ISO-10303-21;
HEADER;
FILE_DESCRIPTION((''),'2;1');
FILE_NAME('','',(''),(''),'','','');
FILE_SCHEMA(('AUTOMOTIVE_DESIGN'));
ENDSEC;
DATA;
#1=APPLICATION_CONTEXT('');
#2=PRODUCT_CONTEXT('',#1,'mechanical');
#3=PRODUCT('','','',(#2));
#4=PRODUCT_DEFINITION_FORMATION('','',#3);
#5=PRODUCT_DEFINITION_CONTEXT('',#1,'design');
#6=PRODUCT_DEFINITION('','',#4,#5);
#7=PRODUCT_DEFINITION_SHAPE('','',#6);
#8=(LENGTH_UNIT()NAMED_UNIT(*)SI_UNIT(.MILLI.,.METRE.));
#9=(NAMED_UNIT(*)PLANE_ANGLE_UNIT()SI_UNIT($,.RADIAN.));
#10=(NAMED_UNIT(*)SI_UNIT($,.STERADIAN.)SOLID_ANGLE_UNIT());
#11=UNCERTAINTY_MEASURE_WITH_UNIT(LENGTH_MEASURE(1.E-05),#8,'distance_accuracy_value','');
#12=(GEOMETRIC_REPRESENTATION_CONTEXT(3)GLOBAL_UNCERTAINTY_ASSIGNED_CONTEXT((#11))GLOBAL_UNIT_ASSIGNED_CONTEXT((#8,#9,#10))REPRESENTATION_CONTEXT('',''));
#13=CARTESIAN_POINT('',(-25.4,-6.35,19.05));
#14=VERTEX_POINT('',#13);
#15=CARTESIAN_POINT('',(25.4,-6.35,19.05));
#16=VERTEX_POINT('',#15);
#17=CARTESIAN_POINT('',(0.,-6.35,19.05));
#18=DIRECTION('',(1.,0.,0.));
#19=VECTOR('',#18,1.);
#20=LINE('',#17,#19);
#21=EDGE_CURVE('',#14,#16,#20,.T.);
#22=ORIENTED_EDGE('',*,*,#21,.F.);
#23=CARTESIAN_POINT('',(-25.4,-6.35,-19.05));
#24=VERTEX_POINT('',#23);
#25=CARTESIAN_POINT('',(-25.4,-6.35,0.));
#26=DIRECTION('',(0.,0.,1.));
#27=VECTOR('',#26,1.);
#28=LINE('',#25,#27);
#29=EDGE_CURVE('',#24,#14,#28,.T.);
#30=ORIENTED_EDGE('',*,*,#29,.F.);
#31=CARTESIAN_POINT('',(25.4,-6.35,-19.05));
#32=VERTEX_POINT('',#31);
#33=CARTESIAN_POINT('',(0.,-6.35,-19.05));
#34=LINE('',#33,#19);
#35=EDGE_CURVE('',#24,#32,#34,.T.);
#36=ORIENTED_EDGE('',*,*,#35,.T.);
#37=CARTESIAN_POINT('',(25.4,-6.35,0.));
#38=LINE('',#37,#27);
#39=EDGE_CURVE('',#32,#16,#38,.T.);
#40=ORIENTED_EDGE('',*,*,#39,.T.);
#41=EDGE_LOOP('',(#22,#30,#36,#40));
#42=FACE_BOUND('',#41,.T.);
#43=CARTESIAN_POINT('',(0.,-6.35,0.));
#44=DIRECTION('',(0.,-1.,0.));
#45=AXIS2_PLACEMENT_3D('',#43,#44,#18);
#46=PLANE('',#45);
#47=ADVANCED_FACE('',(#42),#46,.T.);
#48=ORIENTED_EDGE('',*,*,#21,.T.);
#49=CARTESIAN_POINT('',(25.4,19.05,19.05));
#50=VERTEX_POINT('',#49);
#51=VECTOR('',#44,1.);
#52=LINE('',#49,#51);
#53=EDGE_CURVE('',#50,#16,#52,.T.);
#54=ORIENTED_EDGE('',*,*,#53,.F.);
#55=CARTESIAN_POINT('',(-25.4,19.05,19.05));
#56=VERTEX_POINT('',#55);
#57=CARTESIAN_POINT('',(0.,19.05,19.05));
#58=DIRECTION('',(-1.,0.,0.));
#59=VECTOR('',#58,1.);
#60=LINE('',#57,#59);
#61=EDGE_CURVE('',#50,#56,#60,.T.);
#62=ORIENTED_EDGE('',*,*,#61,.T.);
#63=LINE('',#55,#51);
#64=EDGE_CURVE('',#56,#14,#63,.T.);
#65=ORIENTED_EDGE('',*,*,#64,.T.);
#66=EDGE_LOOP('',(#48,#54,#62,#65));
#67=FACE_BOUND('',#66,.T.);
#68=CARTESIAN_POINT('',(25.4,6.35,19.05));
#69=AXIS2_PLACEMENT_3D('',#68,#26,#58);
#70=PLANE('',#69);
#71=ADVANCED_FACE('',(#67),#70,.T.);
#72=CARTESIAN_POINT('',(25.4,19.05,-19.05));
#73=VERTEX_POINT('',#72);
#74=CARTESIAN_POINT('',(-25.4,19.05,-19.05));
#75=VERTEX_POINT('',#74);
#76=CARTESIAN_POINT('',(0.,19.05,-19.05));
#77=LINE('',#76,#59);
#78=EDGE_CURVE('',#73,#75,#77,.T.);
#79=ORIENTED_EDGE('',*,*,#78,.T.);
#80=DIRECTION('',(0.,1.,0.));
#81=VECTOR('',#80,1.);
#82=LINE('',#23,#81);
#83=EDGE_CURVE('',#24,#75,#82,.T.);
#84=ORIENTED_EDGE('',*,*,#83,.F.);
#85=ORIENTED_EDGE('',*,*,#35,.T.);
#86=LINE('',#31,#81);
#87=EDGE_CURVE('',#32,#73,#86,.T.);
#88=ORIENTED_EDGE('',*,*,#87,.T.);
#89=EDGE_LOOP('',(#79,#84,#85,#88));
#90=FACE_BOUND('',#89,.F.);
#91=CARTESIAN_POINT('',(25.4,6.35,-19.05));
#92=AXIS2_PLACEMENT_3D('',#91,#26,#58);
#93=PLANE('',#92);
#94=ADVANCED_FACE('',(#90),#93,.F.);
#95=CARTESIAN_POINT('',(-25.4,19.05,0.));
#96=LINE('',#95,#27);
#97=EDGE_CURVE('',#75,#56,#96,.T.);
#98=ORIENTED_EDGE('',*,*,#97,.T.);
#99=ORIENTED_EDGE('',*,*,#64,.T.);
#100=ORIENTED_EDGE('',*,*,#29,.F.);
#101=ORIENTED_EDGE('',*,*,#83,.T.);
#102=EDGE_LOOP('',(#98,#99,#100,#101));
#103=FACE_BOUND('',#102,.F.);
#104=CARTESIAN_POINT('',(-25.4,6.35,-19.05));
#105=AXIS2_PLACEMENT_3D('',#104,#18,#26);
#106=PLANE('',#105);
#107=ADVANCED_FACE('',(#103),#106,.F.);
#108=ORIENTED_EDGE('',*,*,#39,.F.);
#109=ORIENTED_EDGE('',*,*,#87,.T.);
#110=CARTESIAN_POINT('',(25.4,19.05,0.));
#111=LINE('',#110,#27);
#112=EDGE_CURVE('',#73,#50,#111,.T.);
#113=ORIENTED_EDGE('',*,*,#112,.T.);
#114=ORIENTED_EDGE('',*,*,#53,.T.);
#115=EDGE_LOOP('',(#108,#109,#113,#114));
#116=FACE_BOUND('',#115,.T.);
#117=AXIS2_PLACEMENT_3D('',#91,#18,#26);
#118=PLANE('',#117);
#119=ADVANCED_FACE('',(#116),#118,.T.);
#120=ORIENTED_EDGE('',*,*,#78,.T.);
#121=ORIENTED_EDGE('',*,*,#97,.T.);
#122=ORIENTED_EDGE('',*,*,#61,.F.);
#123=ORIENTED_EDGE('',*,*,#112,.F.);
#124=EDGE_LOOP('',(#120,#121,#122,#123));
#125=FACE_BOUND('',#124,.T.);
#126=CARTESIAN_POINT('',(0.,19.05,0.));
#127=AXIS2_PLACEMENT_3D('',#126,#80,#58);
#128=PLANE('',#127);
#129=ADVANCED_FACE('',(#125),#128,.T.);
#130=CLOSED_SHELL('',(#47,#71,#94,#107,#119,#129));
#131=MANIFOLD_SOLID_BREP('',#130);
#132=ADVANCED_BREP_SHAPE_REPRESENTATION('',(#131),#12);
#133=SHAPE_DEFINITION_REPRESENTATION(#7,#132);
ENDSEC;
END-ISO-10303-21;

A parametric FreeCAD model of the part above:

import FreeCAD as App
import Part
import Sketcher
from FreeCAD import Vector
Q = App.Units.Quantity

doc = App.newDocument("Part")
params = doc.addObject("Spreadsheet::Sheet", "Params")
for row, (alias, value) in enumerate([
    ("sketch1_width", "2 in"),
    ("sketch1_height", "1.5 in"),
    ("pad1_length", "0.5 in"),
    ("sketch2_width", "2 in"),
    ("sketch2_height", "1.5 in"),
    ("pad2_length", "0.5 in"),
], start=1):
    params.set(f"A{row}", alias)
    params.set(f"B{row}", "=" + value)
    params.setAlias(f"B{row}", alias)

body = doc.addObject("PartDesign::Body", "Body")

sketch1 = doc.addObject("Sketcher::SketchObject", "Sketch")
body.addObject(sketch1)
sketch1.AttachmentSupport = (doc.XZ_Plane, [""])
sketch1.MapMode = "FlatFace"
sketch1.addGeometry(Part.LineSegment(Vector(-25, 19, 0), Vector(-25, -19, 0)), False)
sketch1.addGeometry(Part.LineSegment(Vector(-25, -19, 0), Vector(25, -19, 0)), False)
sketch1.addGeometry(Part.LineSegment(Vector(25, -19, 0), Vector(25, 19, 0)), False)
sketch1.addGeometry(Part.LineSegment(Vector(25, 19, 0), Vector(-25, 19, 0)), False)
sketch1.addConstraint(Sketcher.Constraint("Coincident", 0, 2, 1, 1))
sketch1.addConstraint(Sketcher.Constraint("Coincident", 1, 2, 2, 1))
sketch1.addConstraint(Sketcher.Constraint("Coincident", 2, 2, 3, 1))
sketch1.addConstraint(Sketcher.Constraint("Coincident", 3, 2, 0, 1))
sketch1.addConstraint(Sketcher.Constraint("Vertical", 0))
sketch1.addConstraint(Sketcher.Constraint("Horizontal", 1))
sketch1.addConstraint(Sketcher.Constraint("Vertical", 2))
sketch1.addConstraint(Sketcher.Constraint("Horizontal", 3))
sketch1.addConstraint(Sketcher.Constraint("Symmetric", 0, 2, 2, 2, -1, 1))
sketch1.addConstraint(Sketcher.Constraint("DistanceX", 1, 1, 1, 2, Q("2 in")))
sketch1.addConstraint(Sketcher.Constraint("DistanceY", 0, 2, 0, 1, Q("1.5 in")))
sketch1.setExpression("Constraints[9]", "Params.sketch1_width")
sketch1.setExpression("Constraints[10]", "Params.sketch1_height")
pad1 = doc.addObject("PartDesign::Pad", "Pad")
body.addObject(pad1)
pad1.Profile = sketch1
pad1.setExpression("Length", "Params.pad1_length")
pad1.Midplane = True

sketch2 = doc.addObject("Sketcher::SketchObject", "Sketch001")
body.addObject(sketch2)
sketch2.AttachmentSupport = (doc.XZ_Plane, [""])
sketch2.MapMode = "FlatFace"
sketch2.AttachmentOffset = App.Placement(Vector(0, 0, -0.25 * 25.4), App.Rotation())
sketch2.addGeometry(Part.LineSegment(Vector(25, 19, 0), Vector(25, -19, 0)), False)
sketch2.addGeometry(Part.LineSegment(Vector(25, -19, 0), Vector(-25, -19, 0)), False)
sketch2.addGeometry(Part.LineSegment(Vector(-25, -19, 0), Vector(-25, 19, 0)), False)
sketch2.addGeometry(Part.LineSegment(Vector(-25, 19, 0), Vector(25, 19, 0)), False)
sketch2.addConstraint(Sketcher.Constraint("Coincident", 0, 2, 1, 1))
sketch2.addConstraint(Sketcher.Constraint("Coincident", 1, 2, 2, 1))
sketch2.addConstraint(Sketcher.Constraint("Coincident", 2, 2, 3, 1))
sketch2.addConstraint(Sketcher.Constraint("Coincident", 3, 2, 0, 1))
sketch2.addConstraint(Sketcher.Constraint("Vertical", 0))
sketch2.addConstraint(Sketcher.Constraint("Horizontal", 1))
sketch2.addConstraint(Sketcher.Constraint("Vertical", 2))
sketch2.addConstraint(Sketcher.Constraint("Horizontal", 3))
sketch2.addConstraint(Sketcher.Constraint("Symmetric", 0, 2, 2, 2, -1, 1))
sketch2.addConstraint(Sketcher.Constraint("DistanceX", 1, 2, 1, 1, Q("2 in")))
sketch2.addConstraint(Sketcher.Constraint("DistanceY", 0, 2, 0, 1, Q("1.5 in")))
sketch2.setExpression("Constraints[9]", "Params.sketch2_width")
sketch2.setExpression("Constraints[10]", "Params.sketch2_height")
pad2 = doc.addObject("PartDesign::Pad", "Pad001")
body.addObject(pad2)
pad2.Profile = sketch2
pad2.setExpression("Length", "Params.pad2_length")
pad2.Reversed = True

doc.recompute()
